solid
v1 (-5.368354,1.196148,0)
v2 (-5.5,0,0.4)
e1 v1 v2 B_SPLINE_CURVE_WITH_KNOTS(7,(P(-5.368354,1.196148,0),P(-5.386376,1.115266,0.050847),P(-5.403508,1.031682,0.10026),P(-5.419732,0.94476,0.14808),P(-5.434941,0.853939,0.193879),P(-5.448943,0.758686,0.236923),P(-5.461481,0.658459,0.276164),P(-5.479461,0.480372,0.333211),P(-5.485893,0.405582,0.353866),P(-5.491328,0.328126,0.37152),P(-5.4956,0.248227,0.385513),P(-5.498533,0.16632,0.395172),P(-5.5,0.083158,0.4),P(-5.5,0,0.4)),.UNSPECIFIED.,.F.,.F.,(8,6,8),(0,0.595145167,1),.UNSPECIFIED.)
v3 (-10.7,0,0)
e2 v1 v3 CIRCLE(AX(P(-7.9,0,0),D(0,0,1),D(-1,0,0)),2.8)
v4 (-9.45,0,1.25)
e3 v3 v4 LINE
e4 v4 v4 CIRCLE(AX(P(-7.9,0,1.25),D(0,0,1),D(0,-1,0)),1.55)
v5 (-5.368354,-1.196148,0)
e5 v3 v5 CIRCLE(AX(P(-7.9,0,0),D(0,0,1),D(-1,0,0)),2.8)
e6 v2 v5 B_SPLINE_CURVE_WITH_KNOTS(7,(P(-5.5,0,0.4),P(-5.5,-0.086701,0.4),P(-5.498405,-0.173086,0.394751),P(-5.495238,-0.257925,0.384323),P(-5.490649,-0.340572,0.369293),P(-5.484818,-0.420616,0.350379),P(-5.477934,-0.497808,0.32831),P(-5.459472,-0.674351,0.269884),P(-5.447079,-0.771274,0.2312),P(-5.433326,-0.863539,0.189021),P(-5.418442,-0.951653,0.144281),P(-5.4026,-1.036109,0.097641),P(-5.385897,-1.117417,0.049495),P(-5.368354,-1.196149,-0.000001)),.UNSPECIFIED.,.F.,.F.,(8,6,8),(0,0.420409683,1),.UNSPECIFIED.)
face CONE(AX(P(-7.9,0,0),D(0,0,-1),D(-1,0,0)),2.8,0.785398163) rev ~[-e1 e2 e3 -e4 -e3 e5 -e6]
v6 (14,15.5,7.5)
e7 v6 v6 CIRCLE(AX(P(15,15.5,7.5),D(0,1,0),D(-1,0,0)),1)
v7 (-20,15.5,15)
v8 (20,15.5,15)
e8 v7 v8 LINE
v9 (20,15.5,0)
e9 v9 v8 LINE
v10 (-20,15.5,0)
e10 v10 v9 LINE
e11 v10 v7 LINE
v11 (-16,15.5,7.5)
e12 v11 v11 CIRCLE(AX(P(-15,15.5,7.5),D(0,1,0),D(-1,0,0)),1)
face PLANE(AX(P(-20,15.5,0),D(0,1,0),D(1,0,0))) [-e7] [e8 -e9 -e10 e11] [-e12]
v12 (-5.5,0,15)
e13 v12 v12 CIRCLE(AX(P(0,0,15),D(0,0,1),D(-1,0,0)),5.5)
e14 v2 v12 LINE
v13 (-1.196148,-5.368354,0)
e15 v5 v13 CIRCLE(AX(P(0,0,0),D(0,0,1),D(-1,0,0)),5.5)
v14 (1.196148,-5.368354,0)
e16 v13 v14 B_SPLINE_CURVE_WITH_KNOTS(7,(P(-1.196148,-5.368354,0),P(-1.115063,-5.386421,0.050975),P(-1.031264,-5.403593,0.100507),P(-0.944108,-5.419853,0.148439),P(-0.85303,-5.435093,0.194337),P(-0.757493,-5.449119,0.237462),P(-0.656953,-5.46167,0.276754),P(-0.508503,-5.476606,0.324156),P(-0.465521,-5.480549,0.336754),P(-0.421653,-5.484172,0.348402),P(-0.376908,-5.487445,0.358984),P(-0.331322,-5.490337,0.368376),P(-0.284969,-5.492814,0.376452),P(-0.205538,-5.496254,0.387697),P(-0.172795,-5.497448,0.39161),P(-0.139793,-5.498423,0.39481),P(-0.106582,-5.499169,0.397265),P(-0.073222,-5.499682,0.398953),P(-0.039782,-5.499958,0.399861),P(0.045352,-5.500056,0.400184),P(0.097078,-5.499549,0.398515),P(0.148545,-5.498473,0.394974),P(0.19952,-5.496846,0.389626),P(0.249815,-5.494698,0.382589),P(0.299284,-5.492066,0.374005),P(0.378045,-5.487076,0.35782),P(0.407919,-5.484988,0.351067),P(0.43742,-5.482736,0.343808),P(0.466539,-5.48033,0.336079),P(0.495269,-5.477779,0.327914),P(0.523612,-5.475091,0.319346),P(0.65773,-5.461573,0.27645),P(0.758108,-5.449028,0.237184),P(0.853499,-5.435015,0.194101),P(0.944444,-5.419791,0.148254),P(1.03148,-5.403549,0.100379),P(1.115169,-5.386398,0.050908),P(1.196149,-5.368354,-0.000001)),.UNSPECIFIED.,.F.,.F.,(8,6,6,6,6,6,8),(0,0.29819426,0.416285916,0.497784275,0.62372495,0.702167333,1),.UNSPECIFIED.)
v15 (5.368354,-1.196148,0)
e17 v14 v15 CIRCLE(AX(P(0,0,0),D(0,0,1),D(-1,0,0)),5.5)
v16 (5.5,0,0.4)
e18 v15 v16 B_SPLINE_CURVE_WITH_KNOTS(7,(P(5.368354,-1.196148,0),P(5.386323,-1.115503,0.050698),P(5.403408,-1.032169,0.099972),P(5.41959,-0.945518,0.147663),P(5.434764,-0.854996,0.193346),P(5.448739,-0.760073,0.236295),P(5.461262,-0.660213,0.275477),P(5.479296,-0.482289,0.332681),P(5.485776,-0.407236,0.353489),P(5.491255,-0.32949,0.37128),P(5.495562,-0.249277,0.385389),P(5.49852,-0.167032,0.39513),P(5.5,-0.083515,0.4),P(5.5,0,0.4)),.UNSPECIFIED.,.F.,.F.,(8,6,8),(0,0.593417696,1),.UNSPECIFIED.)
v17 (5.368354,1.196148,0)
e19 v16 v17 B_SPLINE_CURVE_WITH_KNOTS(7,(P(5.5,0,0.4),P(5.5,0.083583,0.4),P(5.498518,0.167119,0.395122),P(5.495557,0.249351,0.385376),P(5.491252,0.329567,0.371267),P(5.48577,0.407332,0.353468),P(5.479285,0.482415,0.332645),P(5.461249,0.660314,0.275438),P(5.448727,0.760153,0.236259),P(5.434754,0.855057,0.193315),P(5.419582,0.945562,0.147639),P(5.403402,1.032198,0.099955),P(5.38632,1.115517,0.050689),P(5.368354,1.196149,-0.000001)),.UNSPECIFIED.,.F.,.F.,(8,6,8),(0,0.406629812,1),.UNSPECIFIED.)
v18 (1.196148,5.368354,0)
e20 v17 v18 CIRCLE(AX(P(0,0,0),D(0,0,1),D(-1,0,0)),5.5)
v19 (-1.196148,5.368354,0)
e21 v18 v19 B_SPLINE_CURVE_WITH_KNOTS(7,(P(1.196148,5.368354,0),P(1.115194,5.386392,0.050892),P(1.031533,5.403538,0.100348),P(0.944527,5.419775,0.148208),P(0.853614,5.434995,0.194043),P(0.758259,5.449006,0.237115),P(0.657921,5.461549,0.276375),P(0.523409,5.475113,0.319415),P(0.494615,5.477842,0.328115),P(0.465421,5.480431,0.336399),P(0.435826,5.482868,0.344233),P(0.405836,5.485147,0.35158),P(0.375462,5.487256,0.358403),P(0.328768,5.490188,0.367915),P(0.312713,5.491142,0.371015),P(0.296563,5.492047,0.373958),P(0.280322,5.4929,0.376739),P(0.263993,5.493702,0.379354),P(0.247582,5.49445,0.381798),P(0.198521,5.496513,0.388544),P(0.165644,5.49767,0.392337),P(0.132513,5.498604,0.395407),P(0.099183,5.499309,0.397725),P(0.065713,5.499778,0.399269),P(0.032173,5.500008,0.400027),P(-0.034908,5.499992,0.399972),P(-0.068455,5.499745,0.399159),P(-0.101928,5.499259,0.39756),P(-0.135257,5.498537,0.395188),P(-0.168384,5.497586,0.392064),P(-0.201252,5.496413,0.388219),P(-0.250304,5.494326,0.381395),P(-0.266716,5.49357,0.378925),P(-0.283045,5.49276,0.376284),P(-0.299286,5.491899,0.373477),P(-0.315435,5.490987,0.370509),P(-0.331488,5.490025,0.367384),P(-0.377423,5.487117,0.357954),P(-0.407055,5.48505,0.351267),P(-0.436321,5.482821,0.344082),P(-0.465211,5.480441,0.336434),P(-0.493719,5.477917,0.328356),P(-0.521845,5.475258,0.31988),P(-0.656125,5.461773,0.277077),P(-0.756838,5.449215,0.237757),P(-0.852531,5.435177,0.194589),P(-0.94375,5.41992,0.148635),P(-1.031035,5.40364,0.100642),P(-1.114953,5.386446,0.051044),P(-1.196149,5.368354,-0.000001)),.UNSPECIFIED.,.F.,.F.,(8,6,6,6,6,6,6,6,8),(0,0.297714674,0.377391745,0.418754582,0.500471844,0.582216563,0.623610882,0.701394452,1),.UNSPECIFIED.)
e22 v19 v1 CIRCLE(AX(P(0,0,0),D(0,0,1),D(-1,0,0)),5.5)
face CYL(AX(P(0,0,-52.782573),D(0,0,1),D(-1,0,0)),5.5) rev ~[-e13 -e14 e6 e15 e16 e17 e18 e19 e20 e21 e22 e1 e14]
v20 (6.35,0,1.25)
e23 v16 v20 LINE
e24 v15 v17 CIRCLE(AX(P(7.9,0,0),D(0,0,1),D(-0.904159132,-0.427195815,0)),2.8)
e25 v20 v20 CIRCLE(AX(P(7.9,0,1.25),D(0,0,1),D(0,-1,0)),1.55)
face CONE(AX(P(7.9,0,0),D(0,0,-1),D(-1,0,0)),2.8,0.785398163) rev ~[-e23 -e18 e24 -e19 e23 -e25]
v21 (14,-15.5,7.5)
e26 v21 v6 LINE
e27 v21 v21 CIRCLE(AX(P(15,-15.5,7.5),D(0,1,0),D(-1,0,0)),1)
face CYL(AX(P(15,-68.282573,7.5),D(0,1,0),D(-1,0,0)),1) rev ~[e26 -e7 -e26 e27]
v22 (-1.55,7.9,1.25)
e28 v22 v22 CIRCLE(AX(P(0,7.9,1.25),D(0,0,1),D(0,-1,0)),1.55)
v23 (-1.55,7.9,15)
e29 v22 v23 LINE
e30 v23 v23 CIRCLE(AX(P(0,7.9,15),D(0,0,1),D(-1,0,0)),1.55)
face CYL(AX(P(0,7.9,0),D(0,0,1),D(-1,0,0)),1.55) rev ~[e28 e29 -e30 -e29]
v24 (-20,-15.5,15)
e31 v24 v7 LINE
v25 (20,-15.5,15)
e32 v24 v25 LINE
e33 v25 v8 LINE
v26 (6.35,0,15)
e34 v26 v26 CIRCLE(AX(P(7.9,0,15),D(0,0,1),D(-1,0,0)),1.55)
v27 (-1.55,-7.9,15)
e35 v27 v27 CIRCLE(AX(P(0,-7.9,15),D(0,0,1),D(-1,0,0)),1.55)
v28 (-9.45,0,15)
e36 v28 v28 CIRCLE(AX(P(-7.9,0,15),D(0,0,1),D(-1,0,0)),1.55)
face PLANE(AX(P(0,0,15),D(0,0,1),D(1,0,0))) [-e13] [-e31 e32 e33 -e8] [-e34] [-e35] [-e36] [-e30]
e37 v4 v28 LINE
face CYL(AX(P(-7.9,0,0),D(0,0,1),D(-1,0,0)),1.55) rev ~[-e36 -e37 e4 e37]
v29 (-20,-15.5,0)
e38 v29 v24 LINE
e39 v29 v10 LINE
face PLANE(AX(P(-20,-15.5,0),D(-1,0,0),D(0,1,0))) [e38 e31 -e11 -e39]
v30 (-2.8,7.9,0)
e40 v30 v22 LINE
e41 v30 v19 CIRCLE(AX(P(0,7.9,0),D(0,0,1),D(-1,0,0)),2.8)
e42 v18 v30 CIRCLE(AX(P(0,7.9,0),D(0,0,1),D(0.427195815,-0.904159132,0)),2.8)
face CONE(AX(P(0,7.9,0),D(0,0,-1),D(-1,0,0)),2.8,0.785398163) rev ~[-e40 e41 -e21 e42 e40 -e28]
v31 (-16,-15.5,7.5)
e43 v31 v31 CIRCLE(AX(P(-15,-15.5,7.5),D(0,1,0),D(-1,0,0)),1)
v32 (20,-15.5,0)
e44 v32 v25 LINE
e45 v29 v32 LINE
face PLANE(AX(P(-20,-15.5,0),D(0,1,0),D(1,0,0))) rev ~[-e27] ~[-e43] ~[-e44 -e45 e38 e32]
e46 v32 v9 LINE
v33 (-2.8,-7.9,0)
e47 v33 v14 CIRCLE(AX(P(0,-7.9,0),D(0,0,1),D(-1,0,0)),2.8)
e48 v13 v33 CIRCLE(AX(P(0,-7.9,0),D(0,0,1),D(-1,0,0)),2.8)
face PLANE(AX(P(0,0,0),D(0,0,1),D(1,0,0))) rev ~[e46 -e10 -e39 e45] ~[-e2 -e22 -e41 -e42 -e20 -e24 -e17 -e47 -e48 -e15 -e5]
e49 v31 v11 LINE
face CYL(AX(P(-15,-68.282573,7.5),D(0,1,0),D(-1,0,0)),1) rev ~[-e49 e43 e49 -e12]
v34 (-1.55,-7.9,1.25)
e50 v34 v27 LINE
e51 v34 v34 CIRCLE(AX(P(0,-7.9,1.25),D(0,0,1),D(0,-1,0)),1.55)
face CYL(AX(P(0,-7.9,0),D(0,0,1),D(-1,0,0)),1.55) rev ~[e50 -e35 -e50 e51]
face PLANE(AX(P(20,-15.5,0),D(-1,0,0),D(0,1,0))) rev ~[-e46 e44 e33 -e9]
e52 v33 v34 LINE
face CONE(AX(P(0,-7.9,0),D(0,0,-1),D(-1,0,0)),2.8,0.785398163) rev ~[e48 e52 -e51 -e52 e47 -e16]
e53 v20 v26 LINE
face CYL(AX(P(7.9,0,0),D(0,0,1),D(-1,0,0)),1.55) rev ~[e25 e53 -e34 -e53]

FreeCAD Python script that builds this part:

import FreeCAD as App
import Part
import Sketcher

V = App.Vector

doc = App.newDocument("Part")
body = doc.addObject("PartDesign::Body", "Body")

# Sketch on XY plane
sketch1 = body.newObject("Sketcher::SketchObject", "Sketch")
sketch1.AttachmentSupport = (doc.getObject("XY_Plane"), [""])
sketch1.MapMode = "FlatFace"
sketch1.addGeometry([
    Part.LineSegment(V(-20, 16, 0), V(-20, -16, 0)),
    Part.LineSegment(V(-20, -16, 0), V(20, -16, 0)),
    Part.LineSegment(V(20, -16, 0), V(20, 16, 0)),
    Part.LineSegment(V(20, 16, 0), V(-20, 16, 0)),
], False)
sketch1.addConstraint([
    Sketcher.Constraint("Coincident", 0, 2, 1, 1),
    Sketcher.Constraint("Coincident", 1, 2, 2, 1),
    Sketcher.Constraint("Coincident", 2, 2, 3, 1),
    Sketcher.Constraint("Coincident", 3, 2, 0, 1),
    Sketcher.Constraint("Vertical", 0),
    Sketcher.Constraint("Horizontal", 1),
    Sketcher.Constraint("Vertical", 2),
    Sketcher.Constraint("Horizontal", 3),
    Sketcher.Constraint("Symmetric", 0, 2, 2, 2, -1, 1),
    Sketcher.Constraint("DistanceX", 1, 1, 1, 2, 40.0),
    Sketcher.Constraint("DistanceY", 0, 2, 0, 1, 31.0),
])
pad1 = body.newObject("PartDesign::Pad", "Pad")
pad1.Profile = sketch1
pad1.Length = 15

# Sketch on XY plane
sketch2 = body.newObject("Sketcher::SketchObject", "Sketch001")
sketch2.AttachmentSupport = (doc.getObject("XY_Plane"), [""])
sketch2.MapMode = "FlatFace"
sketch2.addGeometry(Part.Circle(V(0, 0, 0), V(0, 0, 1), 6), False)
sketch2.addConstraint([
    Sketcher.Constraint("Coincident", 0, 3, -1, 1),
    Sketcher.Constraint("Diameter", 0, 11.0),
])
doc.recompute()
hole = body.newObject("PartDesign::Hole", "Hole")
hole.Profile = sketch2
hole.ThreadType = "None"
hole.Diameter = 11
hole.DepthType = "ThroughAll"
hole.Reversed = True

# Sketch on XY plane
sketch3 = body.newObject("Sketcher::SketchObject", "Sketch002")
sketch3.AttachmentSupport = (doc.getObject("XY_Plane"), [""])
sketch3.MapMode = "FlatFace"
sketch3.addGeometry([
    Part.Circle(V(7.9, 0, 0), V(0, 0, 1), 1.6),
    Part.Circle(V(0, -7.9, 0), V(0, 0, 1), 1.6),
    Part.Circle(V(-7.9, 0, 0), V(0, 0, 1), 1.6),
    Part.Circle(V(0, 7.9, 0), V(0, 0, 1), 1.6),
], False)
sketch3.addConstraint([
    Sketcher.Constraint("Equal", 0, 1),
    Sketcher.Constraint("Equal", 1, 2),
    Sketcher.Constraint("Equal", 2, 3),
    Sketcher.Constraint("Symmetric", 0, 3, 2, 3, -1, 1),
    Sketcher.Constraint("Symmetric", 1, 3, 3, 3, -1, 1),
    Sketcher.Constraint("PointOnObject", 0, 3, -1),
    Sketcher.Constraint("PointOnObject", 1, 3, -2),
    Sketcher.Constraint("Diameter", 0, 3.1),
    Sketcher.Constraint("DistanceX", -1, 1, 0, 3, 7.9),
    Sketcher.Constraint("DistanceY", 1, 3, -1, 1, 7.9),
])
doc.recompute()
hole2 = body.newObject("PartDesign::Hole", "Hole001")
hole2.Profile = sketch3
hole2.ThreadType = "None"
hole2.Diameter = 3.1
hole2.DepthType = "ThroughAll"
hole2.HoleCutType = "Countersink"
hole2.HoleCutDiameter = 5.6
hole2.HoleCutCountersinkAngle = 90
hole2.Reversed = True

# Sketch on XZ plane
sketch4 = body.newObject("Sketcher::SketchObject", "Sketch003")
sketch4.AttachmentSupport = (doc.getObject("XZ_Plane"), [""])
sketch4.MapMode = "FlatFace"
sketch4.AttachmentOffset = App.Placement(V(0, 0, 15.5), App.Rotation())
sketch4.addGeometry([
    Part.Circle(V(-15, 7.5, 0), V(0, 0, 1), 1),
    Part.Circle(V(15, 7.5, 0), V(0, 0, 1), 1),
], False)
sketch4.addConstraint([
    Sketcher.Constraint("Equal", 0, 1),
    Sketcher.Constraint("Symmetric", 0, 3, 1, 3, -2),
    Sketcher.Constraint("Diameter", 0, 2.0),
    Sketcher.Constraint("DistanceX", 0, 3, -1, 1, 15.0),
    Sketcher.Constraint("DistanceY", -1, 1, 0, 3, 7.5),
])
doc.recompute()
hole3 = body.newObject("PartDesign::Hole", "Hole002")
hole3.Profile = sketch4
hole3.ThreadType = "None"
hole3.Diameter = 2
hole3.DepthType = "ThroughAll"

doc.recompute()
